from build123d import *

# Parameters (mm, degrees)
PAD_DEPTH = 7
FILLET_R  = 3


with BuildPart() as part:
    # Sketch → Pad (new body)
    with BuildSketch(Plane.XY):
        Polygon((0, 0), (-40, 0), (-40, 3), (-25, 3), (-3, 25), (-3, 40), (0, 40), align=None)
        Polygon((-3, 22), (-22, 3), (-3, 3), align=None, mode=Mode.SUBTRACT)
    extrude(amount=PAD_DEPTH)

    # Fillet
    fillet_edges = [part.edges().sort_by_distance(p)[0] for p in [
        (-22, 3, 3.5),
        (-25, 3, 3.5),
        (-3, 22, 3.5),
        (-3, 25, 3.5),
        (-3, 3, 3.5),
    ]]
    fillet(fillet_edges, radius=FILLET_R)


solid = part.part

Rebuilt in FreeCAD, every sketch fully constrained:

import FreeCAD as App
import Part
import Sketcher
from FreeCAD import Vector


def edges_at(feature, points):
    """Names of the edges that pass closest to the given points."""
    edges = feature.Shape.Edges
    near = lambda p: min(range(len(edges)), key=lambda i: edges[i].distToShape(Part.Vertex(*p))[0])
    return sorted({f"Edge{near(p) + 1}" for p in points})

doc = App.newDocument("Part")
body = doc.addObject("PartDesign::Body", "Body")

# Sketch on XY plane
sketch1 = body.newObject("Sketcher::SketchObject", "Sketch")
sketch1.AttachmentSupport = (doc.getObject("XY_Plane"), [""])
sketch1.MapMode = "FlatFace"
sketch1.addGeometry([
    Part.LineSegment(Vector(-40, 0, 0), Vector(0, 0, 0)),  # 0
    Part.LineSegment(Vector(0, 0, 0), Vector(0, 40, 0)),  # 1
    Part.LineSegment(Vector(0, 40, 0), Vector(-3, 40, 0)),  # 2
    Part.LineSegment(Vector(-3, 40, 0), Vector(-3, 25, 0)),  # 3
    Part.LineSegment(Vector(-3, 25, 0), Vector(-25, 3, 0)),  # 4
    Part.LineSegment(Vector(-25, 3, 0), Vector(-40, 3, 0)),  # 5
    Part.LineSegment(Vector(-40, 3, 0), Vector(-40, 0, 0)),  # 6
    Part.LineSegment(Vector(-3, 22, 0), Vector(-3, 3, 0)),  # 7
    Part.LineSegment(Vector(-3, 3, 0), Vector(-22, 3, 0)),  # 8
    Part.LineSegment(Vector(-22, 3, 0), Vector(-3, 22, 0)),  # 9
], False)
sketch1.addConstraint([
    Sketcher.Constraint("Coincident", 0, 2, 1, 1),
    Sketcher.Constraint("Coincident", 1, 2, 2, 1),
    Sketcher.Constraint("Coincident", 2, 2, 3, 1),
    Sketcher.Constraint("Coincident", 3, 2, 4, 1),
    Sketcher.Constraint("Coincident", 4, 2, 5, 1),
    Sketcher.Constraint("Coincident", 5, 2, 6, 1),
    Sketcher.Constraint("Coincident", 6, 2, 0, 1),
    Sketcher.Constraint("Coincident", 7, 2, 8, 1),
    Sketcher.Constraint("Coincident", 8, 2, 9, 1),
    Sketcher.Constraint("Coincident", 9, 2, 7, 1),
    Sketcher.Constraint("Horizontal", 0),
    Sketcher.Constraint("Vertical", 1),
    Sketcher.Constraint("Horizontal", 2),
    Sketcher.Constraint("Vertical", 3),
    Sketcher.Constraint("Horizontal", 5),
    Sketcher.Constraint("Vertical", 6),
    Sketcher.Constraint("Vertical", 7),
    Sketcher.Constraint("Horizontal", 8),
    Sketcher.Constraint("Coincident", 0, 2, -1, 1),
    Sketcher.Constraint("Parallel", 4, 9),
    Sketcher.Constraint("Horizontal", 5, 2, 7, 2),
    Sketcher.Constraint("Vertical", 3, 2, 7, 2),
    Sketcher.Constraint("Equal", 0, 1),
    Sketcher.Constraint("Equal", 5, 3),
    Sketcher.Constraint("Equal", 2, 6),
    Sketcher.Constraint("DistanceX", 0, 1, 0, 2, 40.0),
    Sketcher.Constraint("DistanceX", 2, 2, 2, 1, 3.0),
    Sketcher.Constraint("DistanceX", 5, 2, 5, 1, 15.0),
    Sketcher.Constraint("DistanceX", 8, 2, 8, 1, 19.0),
])
pad1 = body.newObject("PartDesign::Pad", "Pad")
pad1.Profile = sketch1
pad1.Length = 7
doc.recompute()

fillet = body.newObject("PartDesign::Fillet", "Fillet")
fillet.Base = (pad1, edges_at(pad1, [
    (-22, 3, 3.5),
    (-25, 3, 3.5),
    (-3, 22, 3.5),
    (-3, 25, 3.5),
    (-3, 3, 3.5),
]))
fillet.Radius = 3

doc.recompute()
